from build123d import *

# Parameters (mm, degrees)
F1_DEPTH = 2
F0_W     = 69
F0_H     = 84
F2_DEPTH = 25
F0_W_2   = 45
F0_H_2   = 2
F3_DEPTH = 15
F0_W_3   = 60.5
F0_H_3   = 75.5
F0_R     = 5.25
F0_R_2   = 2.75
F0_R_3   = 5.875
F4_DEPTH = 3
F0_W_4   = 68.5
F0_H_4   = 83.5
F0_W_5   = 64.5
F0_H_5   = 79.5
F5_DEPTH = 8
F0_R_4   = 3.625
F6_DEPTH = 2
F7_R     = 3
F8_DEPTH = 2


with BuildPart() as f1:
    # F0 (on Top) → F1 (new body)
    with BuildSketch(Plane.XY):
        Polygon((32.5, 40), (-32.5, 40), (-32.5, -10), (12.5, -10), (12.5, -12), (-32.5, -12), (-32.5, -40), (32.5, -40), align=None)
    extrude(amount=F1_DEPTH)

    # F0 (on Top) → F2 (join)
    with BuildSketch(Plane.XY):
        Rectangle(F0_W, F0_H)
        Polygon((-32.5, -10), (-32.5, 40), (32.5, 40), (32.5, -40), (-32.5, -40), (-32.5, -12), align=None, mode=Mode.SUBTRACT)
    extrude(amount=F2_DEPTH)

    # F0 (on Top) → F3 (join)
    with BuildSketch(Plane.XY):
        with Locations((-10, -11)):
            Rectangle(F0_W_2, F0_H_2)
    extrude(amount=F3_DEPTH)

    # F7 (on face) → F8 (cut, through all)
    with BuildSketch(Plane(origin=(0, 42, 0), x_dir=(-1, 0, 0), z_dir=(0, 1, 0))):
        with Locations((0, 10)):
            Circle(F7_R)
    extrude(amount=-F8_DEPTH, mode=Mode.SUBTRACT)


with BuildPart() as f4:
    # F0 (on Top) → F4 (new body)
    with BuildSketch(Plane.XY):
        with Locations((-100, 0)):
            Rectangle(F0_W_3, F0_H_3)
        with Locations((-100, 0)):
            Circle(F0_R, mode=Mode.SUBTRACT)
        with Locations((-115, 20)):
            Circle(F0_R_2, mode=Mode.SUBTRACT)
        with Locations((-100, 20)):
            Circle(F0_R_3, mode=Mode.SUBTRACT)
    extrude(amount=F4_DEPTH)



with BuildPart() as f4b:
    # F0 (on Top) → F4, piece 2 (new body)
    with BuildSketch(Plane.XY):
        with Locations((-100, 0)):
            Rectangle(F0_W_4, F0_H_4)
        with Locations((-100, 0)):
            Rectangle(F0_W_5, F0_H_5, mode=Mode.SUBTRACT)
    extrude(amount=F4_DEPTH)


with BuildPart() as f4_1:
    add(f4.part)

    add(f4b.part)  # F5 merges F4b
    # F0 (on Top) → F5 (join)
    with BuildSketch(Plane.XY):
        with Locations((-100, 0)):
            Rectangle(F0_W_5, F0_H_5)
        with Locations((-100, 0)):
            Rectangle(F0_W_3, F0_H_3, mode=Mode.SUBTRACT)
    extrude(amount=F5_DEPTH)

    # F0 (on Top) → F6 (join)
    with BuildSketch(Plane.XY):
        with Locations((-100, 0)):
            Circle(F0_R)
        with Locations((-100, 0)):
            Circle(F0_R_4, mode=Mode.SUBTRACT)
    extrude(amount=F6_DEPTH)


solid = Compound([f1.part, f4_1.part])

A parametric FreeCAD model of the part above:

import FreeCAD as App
import Part
import Sketcher
from FreeCAD import Vector
Q = App.Units.Quantity

doc = App.newDocument("Part")
body = doc.addObject("PartDesign::Body", "Body")

sketch1 = doc.addObject("Sketcher::SketchObject", "Sketch")
body.addObject(sketch1)
sketch1.AttachmentSupport = (doc.XY_Plane, [""])
sketch1.MapMode = "FlatFace"
sketch1.addGeometry([
    Part.LineSegment(Vector(32.5, 40, 0), Vector(-32.5, 40, 0)),
    Part.LineSegment(Vector(-32.5, 40, 0), Vector(-32.5, -10, 0)),
    Part.LineSegment(Vector(-32.5, -10, 0), Vector(12.5, -10, 0)),
    Part.LineSegment(Vector(12.5, -10, 0), Vector(12.5, -12, 0)),
    Part.LineSegment(Vector(12.5, -12, 0), Vector(-32.5, -12, 0)),
    Part.LineSegment(Vector(-32.5, -12, 0), Vector(-32.5, -40, 0)),
    Part.LineSegment(Vector(-32.5, -40, 0), Vector(32.5, -40, 0)),
    Part.LineSegment(Vector(32.5, -40, 0), Vector(32.5, 40, 0)),
], False)
sketch1.addConstraint([
    Sketcher.Constraint("Coincident", 0, 2, 1, 1),
    Sketcher.Constraint("Coincident", 1, 2, 2, 1),
    Sketcher.Constraint("Coincident", 2, 2, 3, 1),
    Sketcher.Constraint("Coincident", 3, 2, 4, 1),
    Sketcher.Constraint("Coincident", 4, 2, 5, 1),
    Sketcher.Constraint("Coincident", 5, 2, 6, 1),
    Sketcher.Constraint("Coincident", 6, 2, 7, 1),
    Sketcher.Constraint("Coincident", 7, 2, 0, 1),
    Sketcher.Constraint("Horizontal", 0),
    Sketcher.Constraint("Vertical", 1),
    Sketcher.Constraint("Horizontal", 2),
    Sketcher.Constraint("Vertical", 3),
    Sketcher.Constraint("Horizontal", 4),
    Sketcher.Constraint("Vertical", 5),
    Sketcher.Constraint("Horizontal", 6),
    Sketcher.Constraint("Vertical", 7),
    Sketcher.Constraint("Symmetric", 0, 2, 6, 2, -1, 1),
    Sketcher.Constraint("Vertical", 1, 2, 4, 2),
    Sketcher.Constraint("DistanceX", 0, 2, 0, 1, Q("65 mm")),
    Sketcher.Constraint("DistanceX", 2, 1, 2, 2, Q("45 mm")),
    Sketcher.Constraint("DistanceY", 1, 2, 1, 1, Q("50 mm")),
    Sketcher.Constraint("DistanceY", 3, 2, 3, 1, Q("2 mm")),
    Sketcher.Constraint("DistanceY", 5, 2, 5, 1, Q("28 mm")),
])
pad1 = doc.addObject("PartDesign::Pad", "Pad")
body.addObject(pad1)
pad1.Profile = sketch1
pad1.Length = 2

sketch2 = doc.addObject("Sketcher::SketchObject", "Sketch001")
body.addObject(sketch2)
sketch2.AttachmentSupport = (doc.XY_Plane, [""])
sketch2.MapMode = "FlatFace"
sketch2.addGeometry([
    Part.LineSegment(Vector(-34.5, 42, 0), Vector(-34.5, -42, 0)),
    Part.LineSegment(Vector(-34.5, -42, 0), Vector(34.5, -42, 0)),
    Part.LineSegment(Vector(34.5, -42, 0), Vector(34.5, 42, 0)),
    Part.LineSegment(Vector(34.5, 42, 0), Vector(-34.5, 42, 0)),
    Part.LineSegment(Vector(-32.5, -40, 0), Vector(-32.5, 40, 0)),
    Part.LineSegment(Vector(-32.5, 40, 0), Vector(32.5, 40, 0)),
    Part.LineSegment(Vector(32.5, 40, 0), Vector(32.5, -40, 0)),
    Part.LineSegment(Vector(32.5, -40, 0), Vector(-32.5, -40, 0)),
], False)
sketch2.addConstraint([
    Sketcher.Constraint("Coincident", 0, 2, 1, 1),
    Sketcher.Constraint("Coincident", 1, 2, 2, 1),
    Sketcher.Constraint("Coincident", 2, 2, 3, 1),
    Sketcher.Constraint("Coincident", 3, 2, 0, 1),
    Sketcher.Constraint("Coincident", 4, 2, 5, 1),
    Sketcher.Constraint("Coincident", 5, 2, 6, 1),
    Sketcher.Constraint("Coincident", 6, 2, 7, 1),
    Sketcher.Constraint("Coincident", 7, 2, 4, 1),
    Sketcher.Constraint("Vertical", 0),
    Sketcher.Constraint("Horizontal", 1),
    Sketcher.Constraint("Vertical", 2),
    Sketcher.Constraint("Horizontal", 3),
    Sketcher.Constraint("Vertical", 4),
    Sketcher.Constraint("Horizontal", 5),
    Sketcher.Constraint("Vertical", 6),
    Sketcher.Constraint("Horizontal", 7),
    Sketcher.Constraint("Symmetric", 0, 2, 2, 2, -1, 1),
    Sketcher.Constraint("Symmetric", 4, 2, 6, 2, -1, 1),
    Sketcher.Constraint("DistanceX", 1, 1, 1, 2, Q("69 mm")),
    Sketcher.Constraint("DistanceX", 5, 1, 5, 2, Q("65 mm")),
    Sketcher.Constraint("DistanceY", 0, 2, 0, 1, Q("84 mm")),
    Sketcher.Constraint("DistanceY", 4, 1, 4, 2, Q("80 mm")),
])
pad2 = doc.addObject("PartDesign::Pad", "Pad001")
body.addObject(pad2)
pad2.Profile = sketch2
pad2.Length = 25

sketch3 = doc.addObject("Sketcher::SketchObject", "Sketch002")
body.addObject(sketch3)
sketch3.AttachmentSupport = (doc.XY_Plane, [""])
sketch3.MapMode = "FlatFace"
sketch3.addGeometry([
    Part.LineSegment(Vector(-32.5, -10, 0), Vector(-32.5, -12, 0)),
    Part.LineSegment(Vector(-32.5, -12, 0), Vector(12.5, -12, 0)),
    Part.LineSegment(Vector(12.5, -12, 0), Vector(12.5, -10, 0)),
    Part.LineSegment(Vector(12.5, -10, 0), Vector(-32.5, -10, 0)),
], False)
sketch3.addConstraint([
    Sketcher.Constraint("Coincident", 0, 2, 1, 1),
    Sketcher.Constraint("Coincident", 1, 2, 2, 1),
    Sketcher.Constraint("Coincident", 2, 2, 3, 1),
    Sketcher.Constraint("Coincident", 3, 2, 0, 1),
    Sketcher.Constraint("Vertical", 0),
    Sketcher.Constraint("Horizontal", 1),
    Sketcher.Constraint("Vertical", 2),
    Sketcher.Constraint("Horizontal", 3),
    Sketcher.Constraint("DistanceX", 1, 1, 1, 2, Q("45 mm")),
    Sketcher.Constraint("DistanceY", 0, 2, 0, 1, Q("2 mm")),
    Sketcher.Constraint("DistanceY", 0, 2, -1, 1, Q("12 mm")),
    Sketcher.Constraint("DistanceX", 0, 2, -1, 1, Q("32.5 mm")),
])
pad3 = doc.addObject("PartDesign::Pad", "Pad002")
body.addObject(pad3)
pad3.Profile = sketch3
pad3.Length = 15

sketch4 = doc.addObject("Sketcher::SketchObject", "Sketch003")
body.addObject(sketch4)
sketch4.AttachmentSupport = (doc.XZ_Plane, [""])
sketch4.MapMode = "FlatFace"
sketch4.AttachmentOffset = App.Placement(Vector(0, 0, -42), App.Rotation())
sketch4.addGeometry(Part.Circle(Vector(0, 10, 0), Vector(0, 0, 1), 3), False)
sketch4.addConstraint([
    Sketcher.Constraint("PointOnObject", 0, 3, -2),
    Sketcher.Constraint("Diameter", 0, Q("6 mm")),
    Sketcher.Constraint("DistanceY", -1, 1, 0, 3, Q("10 mm")),
])
pocket1 = doc.addObject("PartDesign::Pocket", "Pocket")
body.addObject(pocket1)
pocket1.Profile = sketch4
pocket1.Length = 2
pocket1.Reversed = True
body2 = doc.addObject("PartDesign::Body", "Body001")

sketch5 = doc.addObject("Sketcher::SketchObject", "Sketch004")
body2.addObject(sketch5)
sketch5.AttachmentSupport = (doc.getObject("XY_Plane001"), [""])
sketch5.MapMode = "FlatFace"
sketch5.addGeometry([
    Part.LineSegment(Vector(-130.25, 37.75, 0), Vector(-130.25, -37.75, 0)),
    Part.LineSegment(Vector(-130.25, -37.75, 0), Vector(-69.75, -37.75, 0)),
    Part.LineSegment(Vector(-69.75, -37.75, 0), Vector(-69.75, 37.75, 0)),
    Part.LineSegment(Vector(-69.75, 37.75, 0), Vector(-130.25, 37.75, 0)),
    Part.Circle(Vector(-100, 0, 0), Vector(0, 0, 1), 5.25),
    Part.Circle(Vector(-115, 20, 0), Vector(0, 0, 1), 2.75),
    Part.Circle(Vector(-100, 20, 0), Vector(0, 0, 1), 5.875),
], False)
sketch5.addConstraint([
    Sketcher.Constraint("Coincident", 0, 2, 1, 1),
    Sketcher.Constraint("Coincident", 1, 2, 2, 1),
    Sketcher.Constraint("Coincident", 2, 2, 3, 1),
    Sketcher.Constraint("Coincident", 3, 2, 0, 1),
    Sketcher.Constraint("Vertical", 0),
    Sketcher.Constraint("Horizontal", 1),
    Sketcher.Constraint("Vertical", 2),
    Sketcher.Constraint("Horizontal", 3),
    Sketcher.Constraint("PointOnObject", 4, 3, -1),
    Sketcher.Constraint("Horizontal", 5, 3, 6, 3),
    Sketcher.Constraint("Vertical", 4, 3, 6, 3),
    Sketcher.Constraint("Diameter", 4, Q("10.5 mm")),
    Sketcher.Constraint("Diameter", 5, Q("5.5 mm")),
    Sketcher.Constraint("Diameter", 6, Q("11.75 mm")),
    Sketcher.Constraint("DistanceX", 1, 1, 1, 2, Q("60.5 mm")),
    Sketcher.Constraint("DistanceY", 0, 2, 0, 1, Q("75.5 mm")),
    Sketcher.Constraint("DistanceX", 4, 3, -1, 1, Q("100 mm")),
    Sketcher.Constraint("DistanceX", 5, 3, -1, 1, Q("115 mm")),
    Sketcher.Constraint("DistanceY", -1, 1, 5, 3, Q("20 mm")),
    Sketcher.Constraint("DistanceX", 0, 2, -1, 1, Q("130.25 mm")),
    Sketcher.Constraint("DistanceY", 0, 2, -1, 1, Q("37.75 mm")),
])
pad4 = doc.addObject("PartDesign::Pad", "Pad003")
body2.addObject(pad4)
pad4.Profile = sketch5
pad4.Length = 3
body3 = doc.addObject("PartDesign::Body", "Body002")

sketch6 = doc.addObject("Sketcher::SketchObject", "Sketch005")
body3.addObject(sketch6)
sketch6.AttachmentSupport = (doc.getObject("XY_Plane002"), [""])
sketch6.MapMode = "FlatFace"
sketch6.addGeometry([
    Part.LineSegment(Vector(-134.25, 41.75, 0), Vector(-134.25, -41.75, 0)),
    Part.LineSegment(Vector(-134.25, -41.75, 0), Vector(-65.75, -41.75, 0)),
    Part.LineSegment(Vector(-65.75, -41.75, 0), Vector(-65.75, 41.75, 0)),
    Part.LineSegment(Vector(-65.75, 41.75, 0), Vector(-134.25, 41.75, 0)),
    Part.LineSegment(Vector(-67.75, -39.75, 0), Vector(-132.25, -39.75, 0)),
    Part.LineSegment(Vector(-132.25, -39.75, 0), Vector(-132.25, 39.75, 0)),
    Part.LineSegment(Vector(-132.25, 39.75, 0), Vector(-67.75, 39.75, 0)),
    Part.LineSegment(Vector(-67.75, 39.75, 0), Vector(-67.75, -39.75, 0)),
], False)
sketch6.addConstraint([
    Sketcher.Constraint("Coincident", 0, 2, 1, 1),
    Sketcher.Constraint("Coincident", 1, 2, 2, 1),
    Sketcher.Constraint("Coincident", 2, 2, 3, 1),
    Sketcher.Constraint("Coincident", 3, 2, 0, 1),
    Sketcher.Constraint("Coincident", 4, 2, 5, 1),
    Sketcher.Constraint("Coincident", 5, 2, 6, 1),
    Sketcher.Constraint("Coincident", 6, 2, 7, 1),
    Sketcher.Constraint("Coincident", 7, 2, 4, 1),
    Sketcher.Constraint("Vertical", 0),
    Sketcher.Constraint("Horizontal", 1),
    Sketcher.Constraint("Vertical", 2),
    Sketcher.Constraint("Horizontal", 3),
    Sketcher.Constraint("Horizontal", 4),
    Sketcher.Constraint("Vertical", 5),
    Sketcher.Constraint("Horizontal", 6),
    Sketcher.Constraint("Vertical", 7),
    Sketcher.Constraint("DistanceX", 1, 1, 1, 2, Q("68.5 mm")),
    Sketcher.Constraint("DistanceX", 4, 2, 4, 1, Q("64.5 mm")),
    Sketcher.Constraint("DistanceY", 0, 2, 0, 1, Q("83.5 mm")),
    Sketcher.Constraint("DistanceY", 5, 1, 5, 2, Q("79.5 mm")),
    Sketcher.Constraint("DistanceX", 0, 2, 4, 2, Q("2 mm")),
    Sketcher.Constraint("DistanceY", 0, 2, 4, 2, Q("2 mm")),
    Sketcher.Constraint("DistanceX", 0, 2, -1, 1, Q("134.25 mm")),
    Sketcher.Constraint("DistanceY", 0, 2, -1, 1, Q("41.75 mm")),
])
pad5 = doc.addObject("PartDesign::Pad", "Pad004")
body3.addObject(pad5)
pad5.Profile = sketch6
pad5.Length = 3
body2.AllowCompound = True
doc.recompute()

boolean = doc.addObject("PartDesign::Boolean", "Boolean")
body2.addObject(boolean)
boolean.Type = "Fuse"
boolean.addObjects([body3])

sketch7 = doc.addObject("Sketcher::SketchObject", "Sketch006")
body2.addObject(sketch7)
sketch7.AttachmentSupport = (doc.getObject("XY_Plane001"), [""])
sketch7.MapMode = "FlatFace"
sketch7.addGeometry([
    Part.LineSegment(Vector(-132.25, 39.75, 0), Vector(-132.25, -39.75, 0)),
    Part.LineSegment(Vector(-132.25, -39.75, 0), Vector(-67.75, -39.75, 0)),
    Part.LineSegment(Vector(-67.75, -39.75, 0), Vector(-67.75, 39.75, 0)),
    Part.LineSegment(Vector(-67.75, 39.75, 0), Vector(-132.25, 39.75, 0)),
    Part.LineSegment(Vector(-69.75, -37.75, 0), Vector(-130.25, -37.75, 0)),
    Part.LineSegment(Vector(-130.25, -37.75, 0), Vector(-130.25, 37.75, 0)),
    Part.LineSegment(Vector(-130.25, 37.75, 0), Vector(-69.75, 37.75, 0)),
    Part.LineSegment(Vector(-69.75, 37.75, 0), Vector(-69.75, -37.75, 0)),
], False)
sketch7.addConstraint([
    Sketcher.Constraint("Coincident", 0, 2, 1, 1),
    Sketcher.Constraint("Coincident", 1, 2, 2, 1),
    Sketcher.Constraint("Coincident", 2, 2, 3, 1),
    Sketcher.Constraint("Coincident", 3, 2, 0, 1),
    Sketcher.Constraint("Coincident", 4, 2, 5, 1),
    Sketcher.Constraint("Coincident", 5, 2, 6, 1),
    Sketcher.Constraint("Coincident", 6, 2, 7, 1),
    Sketcher.Constraint("Coincident", 7, 2, 4, 1),
    Sketcher.Constraint("Vertical", 0),
    Sketcher.Constraint("Horizontal", 1),
    Sketcher.Constraint("Vertical", 2),
    Sketcher.Constraint("Horizontal", 3),
    Sketcher.Constraint("Horizontal", 4),
    Sketcher.Constraint("Vertical", 5),
    Sketcher.Constraint("Horizontal", 6),
    Sketcher.Constraint("Vertical", 7),
    Sketcher.Constraint("DistanceX", 1, 1, 1, 2, Q("64.5 mm")),
    Sketcher.Constraint("DistanceX", 4, 2, 4, 1, Q("60.5 mm")),
    Sketcher.Constraint("DistanceY", 0, 2, 0, 1, Q("79.5 mm")),
    Sketcher.Constraint("DistanceY", 5, 1, 5, 2, Q("75.5 mm")),
    Sketcher.Constraint("DistanceX", 0, 2, 4, 2, Q("2 mm")),
    Sketcher.Constraint("DistanceY", 0, 2, 4, 2, Q("2 mm")),
    Sketcher.Constraint("DistanceX", 0, 2, -1, 1, Q("132.25 mm")),
    Sketcher.Constraint("DistanceY", 0, 2, -1, 1, Q("39.75 mm")),
])
pad6 = doc.addObject("PartDesign::Pad", "Pad005")
body2.addObject(pad6)
pad6.Profile = sketch7
pad6.Length = 8

sketch8 = doc.addObject("Sketcher::SketchObject", "Sketch007")
body2.addObject(sketch8)
sketch8.AttachmentSupport = (doc.getObject("XY_Plane001"), [""])
sketch8.MapMode = "FlatFace"
sketch8.addGeometry([
    Part.Circle(Vector(-100, 0, 0), Vector(0, 0, 1), 5.25),
    Part.Circle(Vector(-100, 0, 0), Vector(0, 0, 1), 3.625),
], False)
sketch8.addConstraint([
    Sketcher.Constraint("Coincident", 1, 3, 0, 3),
    Sketcher.Constraint("PointOnObject", 0, 3, -1),
    Sketcher.Constraint("Diameter", 0, Q("10.5 mm")),
    Sketcher.Constraint("Diameter", 1, Q("7.25 mm")),
    Sketcher.Constraint("DistanceX", 0, 3, -1, 1, Q("100 mm")),
])
pad7 = doc.addObject("PartDesign::Pad", "Pad006")
body2.addObject(pad7)
pad7.Profile = sketch8
pad7.Length = 2

doc.recompute()
